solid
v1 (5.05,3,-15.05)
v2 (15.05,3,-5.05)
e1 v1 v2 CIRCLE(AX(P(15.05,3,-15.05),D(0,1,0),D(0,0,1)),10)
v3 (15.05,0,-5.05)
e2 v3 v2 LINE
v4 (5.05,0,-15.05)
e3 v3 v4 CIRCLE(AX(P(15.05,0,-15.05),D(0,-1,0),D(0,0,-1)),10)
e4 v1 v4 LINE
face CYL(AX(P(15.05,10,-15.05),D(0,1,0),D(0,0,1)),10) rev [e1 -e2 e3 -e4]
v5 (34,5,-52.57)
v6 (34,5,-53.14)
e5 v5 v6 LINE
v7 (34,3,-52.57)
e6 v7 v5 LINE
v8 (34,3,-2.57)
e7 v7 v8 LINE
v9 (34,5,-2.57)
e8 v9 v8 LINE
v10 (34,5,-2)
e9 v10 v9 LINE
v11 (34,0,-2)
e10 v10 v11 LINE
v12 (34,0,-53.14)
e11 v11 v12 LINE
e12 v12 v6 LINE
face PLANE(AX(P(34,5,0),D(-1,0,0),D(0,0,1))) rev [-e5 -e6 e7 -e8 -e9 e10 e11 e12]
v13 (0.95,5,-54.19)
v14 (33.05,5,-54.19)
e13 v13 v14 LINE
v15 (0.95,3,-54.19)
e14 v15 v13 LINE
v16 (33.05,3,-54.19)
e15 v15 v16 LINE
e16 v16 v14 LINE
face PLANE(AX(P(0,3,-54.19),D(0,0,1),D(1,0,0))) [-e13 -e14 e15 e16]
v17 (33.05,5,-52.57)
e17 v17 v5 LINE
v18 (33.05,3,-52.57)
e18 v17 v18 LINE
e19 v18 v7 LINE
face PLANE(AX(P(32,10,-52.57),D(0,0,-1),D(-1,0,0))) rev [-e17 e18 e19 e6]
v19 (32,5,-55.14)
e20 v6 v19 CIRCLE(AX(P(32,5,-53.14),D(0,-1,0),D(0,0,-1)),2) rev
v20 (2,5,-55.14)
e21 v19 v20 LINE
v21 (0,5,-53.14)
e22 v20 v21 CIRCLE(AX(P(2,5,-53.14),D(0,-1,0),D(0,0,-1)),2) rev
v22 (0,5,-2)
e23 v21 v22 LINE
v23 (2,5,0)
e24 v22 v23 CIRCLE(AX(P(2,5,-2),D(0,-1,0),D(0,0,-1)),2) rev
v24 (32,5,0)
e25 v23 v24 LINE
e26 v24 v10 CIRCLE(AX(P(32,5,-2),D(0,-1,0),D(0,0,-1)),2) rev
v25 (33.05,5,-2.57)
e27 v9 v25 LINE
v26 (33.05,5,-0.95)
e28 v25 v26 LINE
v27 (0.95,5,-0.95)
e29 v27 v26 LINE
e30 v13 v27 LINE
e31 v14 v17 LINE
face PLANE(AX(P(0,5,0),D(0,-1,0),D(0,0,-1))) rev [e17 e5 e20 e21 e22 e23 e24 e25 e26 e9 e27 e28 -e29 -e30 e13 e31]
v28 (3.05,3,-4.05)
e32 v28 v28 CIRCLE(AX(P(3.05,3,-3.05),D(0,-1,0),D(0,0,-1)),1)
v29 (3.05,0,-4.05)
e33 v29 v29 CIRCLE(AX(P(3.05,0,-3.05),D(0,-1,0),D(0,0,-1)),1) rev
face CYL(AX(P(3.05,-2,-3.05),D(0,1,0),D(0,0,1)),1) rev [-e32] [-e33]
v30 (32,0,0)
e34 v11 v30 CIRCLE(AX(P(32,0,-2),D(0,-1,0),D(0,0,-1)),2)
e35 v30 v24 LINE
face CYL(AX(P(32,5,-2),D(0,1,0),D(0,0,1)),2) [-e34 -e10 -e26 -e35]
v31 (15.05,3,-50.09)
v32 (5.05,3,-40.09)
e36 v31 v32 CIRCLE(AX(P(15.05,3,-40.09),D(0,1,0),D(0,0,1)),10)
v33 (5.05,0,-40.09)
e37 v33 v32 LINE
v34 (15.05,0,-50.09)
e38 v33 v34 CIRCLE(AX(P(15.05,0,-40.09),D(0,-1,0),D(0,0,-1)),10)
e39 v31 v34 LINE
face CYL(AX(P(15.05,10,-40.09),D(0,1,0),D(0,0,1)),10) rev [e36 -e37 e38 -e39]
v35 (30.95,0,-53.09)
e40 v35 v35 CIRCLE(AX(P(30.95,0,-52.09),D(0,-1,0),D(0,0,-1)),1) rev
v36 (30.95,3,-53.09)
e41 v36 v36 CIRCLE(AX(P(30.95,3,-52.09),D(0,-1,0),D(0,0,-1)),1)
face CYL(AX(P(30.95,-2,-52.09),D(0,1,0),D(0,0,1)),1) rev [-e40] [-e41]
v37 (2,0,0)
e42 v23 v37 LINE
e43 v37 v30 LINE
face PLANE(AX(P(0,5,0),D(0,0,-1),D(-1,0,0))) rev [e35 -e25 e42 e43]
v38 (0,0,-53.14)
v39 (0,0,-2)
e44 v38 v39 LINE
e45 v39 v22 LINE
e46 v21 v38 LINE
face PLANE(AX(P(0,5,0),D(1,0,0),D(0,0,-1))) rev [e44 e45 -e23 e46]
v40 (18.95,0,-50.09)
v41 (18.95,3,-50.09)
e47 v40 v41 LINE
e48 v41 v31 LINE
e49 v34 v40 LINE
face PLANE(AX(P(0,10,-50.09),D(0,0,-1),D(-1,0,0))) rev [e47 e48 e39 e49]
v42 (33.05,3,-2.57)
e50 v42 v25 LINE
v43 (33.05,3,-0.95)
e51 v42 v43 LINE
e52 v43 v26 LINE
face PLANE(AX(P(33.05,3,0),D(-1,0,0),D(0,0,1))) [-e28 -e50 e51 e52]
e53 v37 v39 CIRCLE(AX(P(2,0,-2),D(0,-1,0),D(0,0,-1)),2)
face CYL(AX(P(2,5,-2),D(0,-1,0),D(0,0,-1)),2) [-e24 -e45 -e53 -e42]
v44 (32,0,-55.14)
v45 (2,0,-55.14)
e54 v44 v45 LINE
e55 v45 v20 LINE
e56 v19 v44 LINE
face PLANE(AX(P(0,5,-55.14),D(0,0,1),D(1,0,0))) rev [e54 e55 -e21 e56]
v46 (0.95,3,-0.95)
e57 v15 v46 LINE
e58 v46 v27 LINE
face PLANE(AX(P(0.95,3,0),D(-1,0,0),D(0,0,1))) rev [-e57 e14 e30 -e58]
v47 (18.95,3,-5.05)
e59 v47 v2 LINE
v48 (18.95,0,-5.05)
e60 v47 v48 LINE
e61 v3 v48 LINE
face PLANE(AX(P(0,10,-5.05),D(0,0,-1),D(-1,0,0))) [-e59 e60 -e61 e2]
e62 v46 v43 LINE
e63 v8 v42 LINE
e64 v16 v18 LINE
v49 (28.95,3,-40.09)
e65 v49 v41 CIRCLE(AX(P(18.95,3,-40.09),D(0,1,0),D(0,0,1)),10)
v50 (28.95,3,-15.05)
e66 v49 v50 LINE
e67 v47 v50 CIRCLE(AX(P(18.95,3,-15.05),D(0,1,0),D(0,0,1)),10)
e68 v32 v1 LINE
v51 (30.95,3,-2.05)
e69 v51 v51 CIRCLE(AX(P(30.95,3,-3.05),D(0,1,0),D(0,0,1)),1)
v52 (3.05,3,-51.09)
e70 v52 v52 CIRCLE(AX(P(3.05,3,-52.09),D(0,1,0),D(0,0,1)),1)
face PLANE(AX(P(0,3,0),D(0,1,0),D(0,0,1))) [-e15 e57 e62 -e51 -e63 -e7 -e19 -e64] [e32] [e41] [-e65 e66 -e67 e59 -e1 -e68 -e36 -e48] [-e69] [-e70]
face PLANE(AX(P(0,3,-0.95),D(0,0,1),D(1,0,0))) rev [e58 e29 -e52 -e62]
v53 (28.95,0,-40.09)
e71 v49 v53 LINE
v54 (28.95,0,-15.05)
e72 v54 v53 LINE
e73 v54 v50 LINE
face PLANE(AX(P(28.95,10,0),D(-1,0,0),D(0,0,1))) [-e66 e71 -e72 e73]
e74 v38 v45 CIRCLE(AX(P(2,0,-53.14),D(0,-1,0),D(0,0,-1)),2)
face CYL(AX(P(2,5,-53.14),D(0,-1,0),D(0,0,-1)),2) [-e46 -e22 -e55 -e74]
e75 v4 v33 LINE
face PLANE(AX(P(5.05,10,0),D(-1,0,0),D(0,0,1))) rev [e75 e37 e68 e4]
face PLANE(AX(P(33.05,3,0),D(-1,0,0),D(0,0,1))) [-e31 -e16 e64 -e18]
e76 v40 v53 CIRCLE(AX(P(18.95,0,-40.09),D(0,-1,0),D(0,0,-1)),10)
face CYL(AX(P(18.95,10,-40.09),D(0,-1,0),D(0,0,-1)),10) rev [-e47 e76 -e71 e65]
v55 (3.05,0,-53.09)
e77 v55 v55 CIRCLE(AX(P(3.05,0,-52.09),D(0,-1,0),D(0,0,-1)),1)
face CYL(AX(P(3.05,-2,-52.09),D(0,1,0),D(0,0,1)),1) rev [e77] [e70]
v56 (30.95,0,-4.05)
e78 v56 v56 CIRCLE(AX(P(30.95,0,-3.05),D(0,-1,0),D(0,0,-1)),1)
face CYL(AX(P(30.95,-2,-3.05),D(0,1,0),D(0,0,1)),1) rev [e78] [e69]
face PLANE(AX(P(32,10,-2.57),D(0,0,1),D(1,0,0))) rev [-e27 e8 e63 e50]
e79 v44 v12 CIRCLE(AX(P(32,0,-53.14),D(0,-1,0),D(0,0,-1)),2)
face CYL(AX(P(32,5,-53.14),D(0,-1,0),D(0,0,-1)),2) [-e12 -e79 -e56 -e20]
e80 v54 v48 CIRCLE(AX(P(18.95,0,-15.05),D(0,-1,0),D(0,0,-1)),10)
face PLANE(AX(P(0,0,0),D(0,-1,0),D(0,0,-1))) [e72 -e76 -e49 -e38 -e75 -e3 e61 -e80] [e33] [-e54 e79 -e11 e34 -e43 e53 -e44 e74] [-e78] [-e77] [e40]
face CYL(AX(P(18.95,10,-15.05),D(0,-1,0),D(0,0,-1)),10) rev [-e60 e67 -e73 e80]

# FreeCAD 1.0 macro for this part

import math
import FreeCAD as App
import Part
import Sketcher

V = App.Vector


def edges_at(feature, points):
    """Names of the edges that pass closest to the given points."""
    edges = feature.Shape.Edges
    near = lambda p: min(range(len(edges)), key=lambda i: edges[i].distToShape(Part.Vertex(*p))[0])
    return sorted({f"Edge{near(p) + 1}" for p in points})

doc = App.newDocument("Part")
body = doc.addObject("PartDesign::Body", "Body")

# Sketch on XZ plane
sketch1 = body.newObject("Sketcher::SketchObject", "Sketch")
sketch1.AttachmentSupport = (doc.getObject("XZ_Plane"), [""])
sketch1.MapMode = "FlatFace"
sketch1.addGeometry([
    Part.LineSegment(V(0, -55, 0), V(0, 0, 0)),
    Part.LineSegment(V(0, 0, 0), V(34, 0, 0)),
    Part.LineSegment(V(34, 0, 0), V(34, -55, 0)),
    Part.LineSegment(V(34, -55, 0), V(0, -55, 0)),
], False)
sketch1.addConstraint([
    Sketcher.Constraint("Coincident", 0, 2, 1, 1),
    Sketcher.Constraint("Coincident", 1, 2, 2, 1),
    Sketcher.Constraint("Coincident", 2, 2, 3, 1),
    Sketcher.Constraint("Coincident", 3, 2, 0, 1),
    Sketcher.Constraint("Vertical", 0),
    Sketcher.Constraint("Horizontal", 1),
    Sketcher.Constraint("Vertical", 2),
    Sketcher.Constraint("Horizontal", 3),
    Sketcher.Constraint("Coincident", 0, 2, -1, 1),
    Sketcher.Constraint("DistanceX", 1, 1, 1, 2, 34.0),
    Sketcher.Constraint("DistanceY", 0, 1, 0, 2, 55.14),
])
pad1 = body.newObject("PartDesign::Pad", "Pad")
pad1.Profile = sketch1
pad1.Length = 5
pad1.Reversed = True

# Sketch on XZ plane
sketch2 = body.newObject("Sketcher::SketchObject", "Sketch001")
sketch2.AttachmentSupport = (doc.getObject("XZ_Plane"), [""])
sketch2.MapMode = "FlatFace"
sketch2.AttachmentOffset = App.Placement(V(0, 0, -5), App.Rotation())
sketch2.addGeometry([
    Part.LineSegment(V(1, -54, 0), V(1, -1, 0)),
    Part.LineSegment(V(1, -1, 0), V(33, -1, 0)),
    Part.LineSegment(V(33, -1, 0), V(33, -54, 0)),
    Part.LineSegment(V(33, -54, 0), V(1, -54, 0)),
], False)
sketch2.addConstraint([
    Sketcher.Constraint("Coincident", 0, 2, 1, 1),
    Sketcher.Constraint("Coincident", 1, 2, 2, 1),
    Sketcher.Constraint("Coincident", 2, 2, 3, 1),
    Sketcher.Constraint("Coincident", 3, 2, 0, 1),
    Sketcher.Constraint("Vertical", 0),
    Sketcher.Constraint("Horizontal", 1),
    Sketcher.Constraint("Vertical", 2),
    Sketcher.Constraint("Horizontal", 3),
    Sketcher.Constraint("DistanceX", 1, 1, 1, 2, 32.1),
    Sketcher.Constraint("DistanceY", 0, 1, 0, 2, 53.24),
    Sketcher.Constraint("DistanceX", -1, 1, 0, 2, 0.95),
    Sketcher.Constraint("DistanceY", 0, 2, -1, 1, 0.95),
])
pocket1 = body.newObject("PartDesign::Pocket", "Pocket")
pocket1.Profile = sketch2
pocket1.Length = 2
pocket1.Reversed = True

# Sketch on YZ plane
sketch3 = body.newObject("Sketcher::SketchObject", "Sketch002")
sketch3.AttachmentSupport = (doc.getObject("YZ_Plane"), [""])
sketch3.MapMode = "FlatFace"
sketch3.AttachmentOffset = App.Placement(V(0, 0, 34), App.Rotation())
sketch3.addGeometry([
    Part.LineSegment(V(10, -3, 0), V(0, -3, 0)),
    Part.LineSegment(V(0, -3, 0), V(0, -53, 0)),
    Part.LineSegment(V(0, -53, 0), V(10, -53, 0)),
    Part.LineSegment(V(10, -53, 0), V(10, -3, 0)),
], False)
sketch3.addConstraint([
    Sketcher.Constraint("Coincident", 0, 2, 1, 1),
    Sketcher.Constraint("Coincident", 1, 2, 2, 1),
    Sketcher.Constraint("Coincident", 2, 2, 3, 1),
    Sketcher.Constraint("Coincident", 3, 2, 0, 1),
    Sketcher.Constraint("Horizontal", 0),
    Sketcher.Constraint("Vertical", 1),
    Sketcher.Constraint("Horizontal", 2),
    Sketcher.Constraint("Vertical", 3),
    Sketcher.Constraint("PointOnObject", 0, 2, -2),
    Sketcher.Constraint("DistanceX", 0, 2, 0, 1, 10.0),
    Sketcher.Constraint("DistanceY", 1, 2, 1, 1, 50.0),
    Sketcher.Constraint("DistanceY", 0, 2, -1, 1, 2.57),
])
pocket2 = body.newObject("PartDesign::Pocket", "Pocket001")
pocket2.Profile = sketch3
pocket2.Length = 2
doc.recompute()

fillet = body.newObject("PartDesign::Fillet", "Fillet")
fillet.Base = (pocket2, edges_at(pocket2, [(0, 2.5, 0)]))
fillet.Radius = 2
doc.recompute()

fillet2 = body.newObject("PartDesign::Fillet", "Fillet001")
fillet2.Base = (fillet, edges_at(fillet, [(0, 2.5, -55.14)]))
fillet2.Radius = 2
doc.recompute()

fillet3 = body.newObject("PartDesign::Fillet", "Fillet002")
fillet3.Base = (fillet2, edges_at(fillet2, [(34, 2.5, -55.14)]))
fillet3.Radius = 2
doc.recompute()

fillet4 = body.newObject("PartDesign::Fillet", "Fillet003")
fillet4.Base = (fillet3, edges_at(fillet3, [(34, 2.5, 0)]))
fillet4.Radius = 2

# Sketch on XZ plane
sketch4 = body.newObject("Sketcher::SketchObject", "Sketch003")
sketch4.AttachmentSupport = (doc.getObject("XZ_Plane"), [""])
sketch4.MapMode = "FlatFace"
sketch4.AttachmentOffset = App.Placement(V(0, 0, -3), App.Rotation())
sketch4.addGeometry([
    Part.Circle(V(3, -52.1, 0), V(0, 0, 1), 1),
    Part.Circle(V(3, -3, 0), V(0, 0, 1), 1),
    Part.Circle(V(30.9, -3, 0), V(0, 0, 1), 1),
    Part.Circle(V(30.9, -52.1, 0), V(0, 0, 1), 1),
], False)
sketch4.addConstraint([
    Sketcher.Constraint("Equal", 0, 1),
    Sketcher.Constraint("Equal", 1, 2),
    Sketcher.Constraint("Equal", 2, 3),
    Sketcher.Constraint("Horizontal", 1, 3, 2, 3),
    Sketcher.Constraint("Horizontal", 0, 3, 3, 3),
    Sketcher.Constraint("Vertical", 0, 3, 1, 3),
    Sketcher.Constraint("Vertical", 2, 3, 3, 3),
    Sketcher.Constraint("Diameter", 0, 2.0),
    Sketcher.Constraint("DistanceX", 1, 3, 2, 3, 27.9),
    Sketcher.Constraint("DistanceX", -1, 1, 0, 3, 3.05),
    Sketcher.Constraint("DistanceY", 0, 3, -1, 1, 52.09),
    Sketcher.Constraint("DistanceY", 1, 3, -1, 1, 3.05),
])
pocket3 = body.newObject("PartDesign::Pocket", "Pocket002")
pocket3.Profile = sketch4
pocket3.Length = 5
pocket3.Reversed = True

# Sketch on XZ plane
sketch5 = body.newObject("Sketcher::SketchObject", "Sketch004")
sketch5.AttachmentSupport = (doc.getObject("XZ_Plane"), [""])
sketch5.MapMode = "FlatFace"
sketch5.AttachmentOffset = App.Placement(V(0, 0, -3), App.Rotation())
sketch5.addGeometry([
    Part.ArcOfCircle(Part.Circle(V(6.05, -49.09, 0), V(0, 0, 1), 1), math.radians(-180), math.radians(-90)),  # 0
    Part.LineSegment(V(5.05, -49.09, 0), V(5.05, -6.05, 0)),  # 1
    Part.ArcOfCircle(Part.Circle(V(6.05, -6.05, 0), V(0, 0, 1), 1), math.radians(90), math.radians(180)),  # 2
    Part.LineSegment(V(6.05, -5.05, 0), V(6.25, -5.05, 0)),  # 3
    Part.ArcOfCircle(Part.Circle(V(6.25, -6.05, 0), V(0, 0, 1), 1), math.radians(0), math.radians(90)),  # 4
    Part.LineSegment(V(7.25, -6.05, 0), V(7.25, -49.09, 0)),  # 5
    Part.ArcOfCircle(Part.Circle(V(6.25, -49.09, 0), V(0, 0, 1), 1), math.radians(-90), math.radians(0)),  # 6
    Part.LineSegment(V(6.25, -50.09, 0), V(6.05, -50.09, 0)),  # 7
    Part.ArcOfCircle(Part.Circle(V(11.05, -49.09, 0), V(0, 0, 1), 1), math.radians(-180), math.radians(-90)),  # 8
    Part.LineSegment(V(10.05, -49.09, 0), V(10.05, -6.05, 0)),  # 9
    Part.ArcOfCircle(Part.Circle(V(11.05, -6.05, 0), V(0, 0, 1), 1), math.radians(90), math.radians(180)),  # 10
    Part.LineSegment(V(11.05, -5.05, 0), V(11.25, -5.05, 0)),  # 11
    Part.ArcOfCircle(Part.Circle(V(11.25, -6.05, 0), V(0, 0, 1), 1), math.radians(0), math.radians(90)),  # 12
    Part.LineSegment(V(12.25, -6.05, 0), V(12.25, -49.09, 0)),  # 13
    Part.ArcOfCircle(Part.Circle(V(11.25, -49.09, 0), V(0, 0, 1), 1), math.radians(-90), math.radians(0)),  # 14
    Part.LineSegment(V(11.25, -50.09, 0), V(11.05, -50.09, 0)),  # 15
    Part.ArcOfCircle(Part.Circle(V(21.05, -49.09, 0), V(0, 0, 1), 1), math.radians(-180), math.radians(-90)),  # 16
    Part.LineSegment(V(20.05, -49.09, 0), V(20.05, -6.05, 0)),  # 17
    Part.ArcOfCircle(Part.Circle(V(21.05, -6.05, 0), V(0, 0, 1), 1), math.radians(90), math.radians(180)),  # 18
    Part.LineSegment(V(21.05, -5.05, 0), V(21.25, -5.05, 0)),  # 19
    Part.ArcOfCircle(Part.Circle(V(21.25, -6.05, 0), V(0, 0, 1), 1), math.radians(0), math.radians(90)),  # 20
    Part.LineSegment(V(22.25, -6.05, 0), V(22.25, -49.09, 0)),  # 21
    Part.ArcOfCircle(Part.Circle(V(21.25, -49.09, 0), V(0, 0, 1), 1), math.radians(-90), math.radians(0)),  # 22
    Part.LineSegment(V(21.25, -50.09, 0), V(21.05, -50.09, 0)),  # 23
    Part.ArcOfCircle(Part.Circle(V(26.05, -6.05, 0), V(0, 0, 1), 1), math.radians(90), math.radians(180)),  # 24
    Part.LineSegment(V(26.05, -5.05, 0), V(26.25, -5.05, 0)),  # 25
    Part.ArcOfCircle(Part.Circle(V(26.25, -6.05, 0), V(0, 0, 1), 1), math.radians(0), math.radians(90)),  # 26
    Part.LineSegment(V(27.25, -6.05, 0), V(27.25, -49.09, 0)),  # 27
    Part.ArcOfCircle(Part.Circle(V(26.25, -49.09, 0), V(0, 0, 1), 1), math.radians(-90), math.radians(0)),  # 28
    Part.LineSegment(V(26.25, -50.09, 0), V(26.05, -50.09, 0)),  # 29
    Part.ArcOfCircle(Part.Circle(V(26.05, -49.09, 0), V(0, 0, 1), 1), math.radians(-180), math.radians(-90)),  # 30
    Part.LineSegment(V(25.05, -49.09, 0), V(25.05, -6.05, 0)),  # 31
    Part.LineSegment(V(15.05, -49.09, 0), V(15.05, -6.05, 0)),  # 32
    Part.ArcOfCircle(Part.Circle(V(16.05, -6.05, 0), V(0, 0, 1), 1), math.radians(90), math.radians(180)),  # 33
    Part.LineSegment(V(16.05, -5.05, 0), V(16.25, -5.05, 0)),  # 34
    Part.ArcOfCircle(Part.Circle(V(16.25, -6.05, 0), V(0, 0, 1), 1), math.radians(0), math.radians(90)),  # 35
    Part.LineSegment(V(17.25, -6.05, 0), V(17.25, -49.09, 0)),  # 36
    Part.ArcOfCircle(Part.Circle(V(16.25, -49.09, 0), V(0, 0, 1), 1), math.radians(-90), math.radians(0)),  # 37
    Part.LineSegment(V(16.25, -50.09, 0), V(16.05, -50.09, 0)),  # 38
    Part.ArcOfCircle(Part.Circle(V(16.05, -49.09, 0), V(0, 0, 1), 1), math.radians(-180), math.radians(-90)),  # 39
], False)
sketch5.addConstraint([
    Sketcher.Constraint("Tangent", 0, 1, 1, 1),
    Sketcher.Constraint("Tangent", 1, 2, 2, 2),
    Sketcher.Constraint("Tangent", 2, 1, 3, 1),
    Sketcher.Constraint("Tangent", 3, 2, 4, 2),
    Sketcher.Constraint("Tangent", 4, 1, 5, 1),
    Sketcher.Constraint("Tangent", 5, 2, 6, 2),
    Sketcher.Constraint("Tangent", 6, 1, 7, 1),
    Sketcher.Constraint("Tangent", 7, 2, 0, 2),
    Sketcher.Constraint("Tangent", 8, 1, 9, 1),
    Sketcher.Constraint("Tangent", 9, 2, 10, 2),
    Sketcher.Constraint("Tangent", 10, 1, 11, 1),
    Sketcher.Constraint("Tangent", 11, 2, 12, 2),
    Sketcher.Constraint("Tangent", 12, 1, 13, 1),
    Sketcher.Constraint("Tangent", 13, 2, 14, 2),
    Sketcher.Constraint("Tangent", 14, 1, 15, 1),
    Sketcher.Constraint("Tangent", 15, 2, 8, 2),
    Sketcher.Constraint("Tangent", 16, 1, 17, 1),
    Sketcher.Constraint("Tangent", 17, 2, 18, 2),
    Sketcher.Constraint("Tangent", 18, 1, 19, 1),
    Sketcher.Constraint("Tangent", 19, 2, 20, 2),
    Sketcher.Constraint("Tangent", 20, 1, 21, 1),
    Sketcher.Constraint("Tangent", 21, 2, 22, 2),
    Sketcher.Constraint("Tangent", 22, 1, 23, 1),
    Sketcher.Constraint("Tangent", 23, 2, 16, 2),
    Sketcher.Constraint("Tangent", 24, 1, 25, 1),
    Sketcher.Constraint("Tangent", 25, 2, 26, 2),
    Sketcher.Constraint("Tangent", 26, 1, 27, 1),
    Sketcher.Constraint("Tangent", 27, 2, 28, 2),
    Sketcher.Constraint("Tangent", 28, 1, 29, 1),
    Sketcher.Constraint("Tangent", 29, 2, 30, 2),
    Sketcher.Constraint("Tangent", 30, 1, 31, 1),
    Sketcher.Constraint("Tangent", 31, 2, 24, 2),
    Sketcher.Constraint("Tangent", 32, 2, 33, 2),
    Sketcher.Constraint("Tangent", 33, 1, 34, 1),
    Sketcher.Constraint("Tangent", 34, 2, 35, 2),
    Sketcher.Constraint("Tangent", 35, 1, 36, 1),
    Sketcher.Constraint("Tangent", 36, 2, 37, 2),
    Sketcher.Constraint("Tangent", 37, 1, 38, 1),
    Sketcher.Constraint("Tangent", 38, 2, 39, 2),
    Sketcher.Constraint("Tangent", 39, 1, 32, 1),
    Sketcher.Constraint("Vertical", 1),
    Sketcher.Constraint("Horizontal", 3),
    Sketcher.Constraint("Vertical", 5),
    Sketcher.Constraint("Horizontal", 7),
    Sketcher.Constraint("Vertical", 9),
    Sketcher.Constraint("Horizontal", 11),
    Sketcher.Constraint("Vertical", 13),
    Sketcher.Constraint("Horizontal", 15),
    Sketcher.Constraint("Vertical", 17),
    Sketcher.Constraint("Horizontal", 19),
    Sketcher.Constraint("Vertical", 21),
    Sketcher.Constraint("Horizontal", 23),
    Sketcher.Constraint("Horizontal", 25),
    Sketcher.Constraint("Vertical", 27),
    Sketcher.Constraint("Horizontal", 29),
    Sketcher.Constraint("Vertical", 31),
    Sketcher.Constraint("Vertical", 32),
    Sketcher.Constraint("Horizontal", 34),
    Sketcher.Constraint("Vertical", 36),
    Sketcher.Constraint("Horizontal", 38),
    Sketcher.Constraint("Equal", 0, 2),
    Sketcher.Constraint("Equal", 2, 4),
    Sketcher.Constraint("Equal", 4, 6),
    Sketcher.Constraint("Equal", 6, 8),
    Sketcher.Constraint("Equal", 8, 10),
    Sketcher.Constraint("Equal", 10, 12),
    Sketcher.Constraint("Equal", 12, 14),
    Sketcher.Constraint("Equal", 14, 16),
    Sketcher.Constraint("Equal", 16, 18),
    Sketcher.Constraint("Equal", 18, 20),
    Sketcher.Constraint("Equal", 20, 22),
    Sketcher.Constraint("Equal", 22, 24),
    Sketcher.Constraint("Equal", 24, 26),
    Sketcher.Constraint("Equal", 26, 28),
    Sketcher.Constraint("Equal", 28, 30),
    Sketcher.Constraint("Equal", 30, 33),
    Sketcher.Constraint("Equal", 33, 35),
    Sketcher.Constraint("Equal", 35, 37),
    Sketcher.Constraint("Equal", 37, 39),
    Sketcher.Constraint("Horizontal", 6, 3, 8, 3),
    Sketcher.Constraint("Horizontal", 4, 3, 10, 3),
    Sketcher.Constraint("Horizontal", 14, 3, 16, 3),
    Sketcher.Constraint("Horizontal", 12, 3, 18, 3),
    Sketcher.Constraint("Horizontal", 20, 3, 24, 3),
    Sketcher.Constraint("Horizontal", 22, 3, 28, 3),
    Sketcher.Constraint("Horizontal", 26, 3, 33, 3),
    Sketcher.Constraint("Horizontal", 30, 3, 37, 3),
    Sketcher.Constraint("Equal", 7, 11),
    Sketcher.Constraint("Equal", 15, 19),
    Sketcher.Constraint("Equal", 23, 25),
    Sketcher.Constraint("Equal", 29, 34),
    Sketcher.Constraint("Radius", 0, 1.0),
    Sketcher.Constraint("DistanceX", 0, 3, 8, 3, 5.0),
    Sketcher.Constraint("DistanceX", 8, 3, 16, 3, 10.0),
    Sketcher.Constraint("DistanceX", 18, 3, 24, 3, 5.0),
    Sketcher.Constraint("DistanceX", 10, 3, 33, 3, 5.0),
    Sketcher.Constraint("DistanceY", 1, 1, 1, 2, 43.04),
    Sketcher.Constraint("DistanceX", -1, 1, 0, 3, 6.05),
    Sketcher.Constraint("DistanceY", 0, 3, -1, 1, 49.09),
    Sketcher.Constraint("DistanceX", 3, 1, 3, 2, 0.204717),
])
pocket4 = body.newObject("PartDesign::Pocket", "Pocket003")
pocket4.Profile = sketch5
pocket4.Length = 5
pocket4.Reversed = True

# Sketch on XZ plane
sketch6 = body.newObject("Sketcher::SketchObject", "Sketch005")
sketch6.AttachmentSupport = (doc.getObject("XZ_Plane"), [""])
sketch6.MapMode = "FlatFace"
sketch6.addGeometry([
    Part.LineSegment(V(3, -5, 0), V(3, -51, 0)),
    Part.LineSegment(V(3, -51, 0), V(28, -51, 0)),
    Part.LineSegment(V(28, -51, 0), V(28, -5, 0)),
    Part.LineSegment(V(28, -5, 0), V(3, -5, 0)),
], False)
sketch6.addConstraint([
    Sketcher.Constraint("Coincident", 0, 2, 1, 1),
    Sketcher.Constraint("Coincident", 1, 2, 2, 1),
    Sketcher.Constraint("Coincident", 2, 2, 3, 1),
    Sketcher.Constraint("Coincident", 3, 2, 0, 1),
    Sketcher.Constraint("Vertical", 0),
    Sketcher.Constraint("Horizontal", 1),
    Sketcher.Constraint("Vertical", 2),
    Sketcher.Constraint("Horizontal", 3),
    Sketcher.Constraint("DistanceX", 1, 1, 1, 2, 24.577641),
    Sketcher.Constraint("DistanceY", 0, 2, 0, 1, 46.089684),
    Sketcher.Constraint("DistanceY", 0, 2, -1, 1, 50.614842),
    Sketcher.Constraint("DistanceX", -1, 1, 0, 2, 3.336946),
])
pad2 = body.newObject("PartDesign::Pad", "Pad001")
pad2.Profile = sketch6
pad2.Length = 3
pad2.Reversed = True

# Sketch on XZ plane
sketch7 = body.newObject("Sketcher::SketchObject", "Sketch006")
sketch7.AttachmentSupport = (doc.getObject("XZ_Plane"), [""])
sketch7.MapMode = "FlatFace"
sketch7.addGeometry([
    Part.LineSegment(V(7, 0, 0), V(7, -6, 0)),
    Part.LineSegment(V(7, -6, 0), V(27, -6, 0)),
    Part.LineSegment(V(27, -6, 0), V(27, 0, 0)),
    Part.LineSegment(V(27, 0, 0), V(7, 0, 0)),
], False)
sketch7.addConstraint([
    Sketcher.Constraint("Coincident", 0, 2, 1, 1),
    Sketcher.Constraint("Coincident", 1, 2, 2, 1),
    Sketcher.Constraint("Coincident", 2, 2, 3, 1),
    Sketcher.Constraint("Coincident", 3, 2, 0, 1),
    Sketcher.Constraint("Vertical", 0),
    Sketcher.Constraint("Horizontal", 1),
    Sketcher.Constraint("Vertical", 2),
    Sketcher.Constraint("Horizontal", 3),
    Sketcher.Constraint("PointOnObject", 2, 2, -1),
    Sketcher.Constraint("DistanceX", 1, 1, 1, 2, 20.0),
    Sketcher.Constraint("DistanceY", 0, 2, 0, 1, 6.0),
    Sketcher.Constraint("DistanceX", -1, 1, 0, 2, 7.0),
])
pad3 = body.newObject("PartDesign::Pad", "Pad002")
pad3.Profile = sketch7
pad3.Length = 5

# Sketch on XZ plane
sketch8 = body.newObject("Sketcher::SketchObject", "Sketch007")
sketch8.AttachmentSupport = (doc.getObject("XZ_Plane"), [""])
sketch8.MapMode = "FlatFace"
sketch8.addGeometry([
    Part.LineSegment(V(7, -49, 0), V(7, -55, 0)),
    Part.LineSegment(V(7, -55, 0), V(27, -55, 0)),
    Part.LineSegment(V(27, -55, 0), V(27, -49, 0)),
    Part.LineSegment(V(27, -49, 0), V(7, -49, 0)),
], False)
sketch8.addConstraint([
    Sketcher.Constraint("Coincident", 0, 2, 1, 1),
    Sketcher.Constraint("Coincident", 1, 2, 2, 1),
    Sketcher.Constraint("Coincident", 2, 2, 3, 1),
    Sketcher.Constraint("Coincident", 3, 2, 0, 1),
    Sketcher.Constraint("Vertical", 0),
    Sketcher.Constraint("Horizontal", 1),
    Sketcher.Constraint("Vertical", 2),
    Sketcher.Constraint("Horizontal", 3),
    Sketcher.Constraint("DistanceX", 1, 1, 1, 2, 20.0),
    Sketcher.Constraint("DistanceY", 0, 2, 0, 1, 6.0),
    Sketcher.Constraint("DistanceX", -1, 1, 0, 2, 7.0),
    Sketcher.Constraint("DistanceY", 0, 2, -1, 1, 55.14),
])
pad4 = body.newObject("PartDesign::Pad", "Pad003")
pad4.Profile = sketch8
pad4.Length = 5

# Sketch on XY plane
sketch9 = body.newObject("Sketcher::SketchObject", "Sketch008")
sketch9.AttachmentSupport = (doc.getObject("XY_Plane"), [""])
sketch9.MapMode = "FlatFace"
sketch9.AttachmentOffset = App.Placement(V(0, 0, -55.14), App.Rotation())
sketch9.addGeometry([
    Part.ArcOfCircle(Part.Circle(V(10, -2.5, 0), V(0, 0, 1), 2), math.radians(-90), math.radians(180)),  # 0
    Part.ArcOfCircle(Part.Circle(V(10, -2.5, 0), V(0, 0, 1), 2), math.radians(-180), math.radians(-90)),  # 1
    Part.ArcOfCircle(Part.Circle(V(24, -2.5, 0), V(0, 0, 1), 2), math.radians(-90), math.radians(0)),  # 2
    Part.ArcOfCircle(Part.Circle(V(24, -2.5, 0), V(0, 0, 1), 2), math.radians(-180), math.radians(-90)),  # 3
    Part.ArcOfCircle(Part.Circle(V(24, -2.5, 0), V(0, 0, 1), 2), math.radians(0), math.radians(180)),  # 4
], False)
sketch9.addConstraint([
    Sketcher.Constraint("Tangent", 0, 1, 1, 2),
    Sketcher.Constraint("Coincident", 1, 1, 0, 2),
    Sketcher.Constraint("Tangent", 2, 1, 3, 2),
    Sketcher.Constraint("Tangent", 3, 1, 4, 2),
    Sketcher.Constraint("Tangent", 4, 1, 2, 2),
    Sketcher.Constraint("Equal", 1, 2),
    Sketcher.Constraint("Horizontal", 1, 3, 2, 3),
    Sketcher.Constraint("Horizontal", 4, 3, 1, 1),
    Sketcher.Constraint("Horizontal", 1, 1, 3, 1),
    Sketcher.Constraint("Horizontal", 3, 1, 4, 1),
    Sketcher.Constraint("Vertical", 1, 3, 0, 1),
    Sketcher.Constraint("Vertical", 4, 3, 2, 1),
    Sketcher.Constraint("Radius", 0, 2.0),
    Sketcher.Constraint("DistanceX", -1, 1, 0, 3, 10.0),
    Sketcher.Constraint("DistanceX", -1, 1, 2, 3, 24.0),
    Sketcher.Constraint("DistanceY", 0, 3, -1, 1, 2.5),
])
pocket5 = body.newObject("PartDesign::Pocket", "Pocket004")
pocket5.Profile = sketch9
pocket5.Type = "ThroughAll"
pocket5.Reversed = True
doc.recompute()

fillet5 = body.newObject("PartDesign::Fillet", "Fillet004")
fillet5.Base = (pocket5, edges_at(pocket5, [(7, -5, -52.14)]))
fillet5.Radius = 2
doc.recompute()

fillet6 = body.newObject("PartDesign::Fillet", "Fillet005")
fillet6.Base = (fillet5, edges_at(fillet5, [(7, 0, -52.14)]))
fillet6.Radius = 2
doc.recompute()

fillet7 = body.newObject("PartDesign::Fillet", "Fillet006")
fillet7.Base = (fillet6, edges_at(fillet6, [(27, -5, -52.14)]))
fillet7.Radius = 2
doc.recompute()

fillet8 = body.newObject("PartDesign::Fillet", "Fillet007")
fillet8.Base = (fillet7, edges_at(fillet7, [(27, 0, -52.14)]))
fillet8.Radius = 2
doc.recompute()

fillet9 = body.newObject("PartDesign::Fillet", "Fillet008")
fillet9.Base = (fillet8, edges_at(fillet8, [(7, -5, -3)]))
fillet9.Radius = 2
doc.recompute()

fillet10 = body.newObject("PartDesign::Fillet", "Fillet009")
fillet10.Base = (fillet9, edges_at(fillet9, [(7, 0, -3)]))
fillet10.Radius = 2
doc.recompute()

fillet11 = body.newObject("PartDesign::Fillet", "Fillet010")
fillet11.Base = (fillet10, edges_at(fillet10, [(27, -5, -3)]))
fillet11.Radius = 2
doc.recompute()

fillet12 = body.newObject("PartDesign::Fillet", "Fillet011")
fillet12.Base = (fillet11, edges_at(fillet11, [(27, 0, -3)]))
fillet12.Radius = 2

# Sketch on XZ plane
sketch10 = body.newObject("Sketcher::SketchObject", "Sketch009")
sketch10.AttachmentSupport = (doc.getObject("XZ_Plane"), [""])
sketch10.MapMode = "FlatFace"
sketch10.addGeometry([
    Part.LineSegment(V(32, -2.6, 0), V(32, -52.6, 0)),
    Part.LineSegment(V(32, -52.6, 0), V(34, -52.6, 0)),
    Part.LineSegment(V(34, -52.6, 0), V(34, -2.6, 0)),
    Part.LineSegment(V(34, -2.6, 0), V(32, -2.6, 0)),
], False)
sketch10.addConstraint([
    Sketcher.Constraint("Coincident", 0, 2, 1, 1),
    Sketcher.Constraint("Coincident", 1, 2, 2, 1),
    Sketcher.Constraint("Coincident", 2, 2, 3, 1),
    Sketcher.Constraint("Coincident", 3, 2, 0, 1),
    Sketcher.Constraint("Vertical", 0),
    Sketcher.Constraint("Horizontal", 1),
    Sketcher.Constraint("Vertical", 2),
    Sketcher.Constraint("Horizontal", 3),
    Sketcher.Constraint("DistanceX", 1, 1, 1, 2, 2.0),
    Sketcher.Constraint("DistanceY", 0, 2, 0, 1, 50.0),
    Sketcher.Constraint("DistanceX", -1, 1, 0, 2, 32.0),
    Sketcher.Constraint("DistanceY", 0, 2, -1, 1, 52.57),
])
pad5 = body.newObject("PartDesign::Pad", "Pad004")
pad5.Profile = sketch10
pad5.Length = 3
pad5.Reversed = True

# Sketch on XZ plane
sketch11 = body.newObject("Sketcher::SketchObject", "Sketch010")
sketch11.AttachmentSupport = (doc.getObject("XZ_Plane"), [""])
sketch11.MapMode = "FlatFace"
sketch11.addGeometry([
    Part.LineSegment(V(-47, 61, 0), V(-47, -59, 0)),
    Part.LineSegment(V(-47, -59, 0), V(40, -59, 0)),
    Part.LineSegment(V(40, -59, 0), V(40, 61, 0)),
    Part.LineSegment(V(40, 61, 0), V(-47, 61, 0)),
], False)
sketch11.addConstraint([
    Sketcher.Constraint("Coincident", 0, 2, 1, 1),
    Sketcher.Constraint("Coincident", 1, 2, 2, 1),
    Sketcher.Constraint("Coincident", 2, 2, 3, 1),
    Sketcher.Constraint("Coincident", 3, 2, 0, 1),
    Sketcher.Constraint("Vertical", 0),
    Sketcher.Constraint("Horizontal", 1),
    Sketcher.Constraint("Vertical", 2),
    Sketcher.Constraint("Horizontal", 3),
    Sketcher.Constraint("DistanceY", 0, 2, 0, 1, 120.507182),
    Sketcher.Constraint("DistanceX", 1, 1, 1, 2, 87.292455),
    Sketcher.Constraint("DistanceY", 0, 2, -1, 1, 59.123991),
    Sketcher.Constraint("DistanceX", -1, 1, 1, 2, 39.96487),
])
pocket6 = body.newObject("PartDesign::Pocket", "Pocket005")
pocket6.Profile = sketch11
pocket6.Length = 10
pocket6.Reversed = True

# Sketch on XZ plane
sketch12 = body.newObject("Sketcher::SketchObject", "Sketch011")
sketch12.AttachmentSupport = (doc.getObject("XZ_Plane"), [""])
sketch12.MapMode = "FlatFace"
sketch12.addGeometry([
    Part.LineSegment(V(5, -5, 0), V(5, -50, 0)),
    Part.LineSegment(V(5, -50, 0), V(29, -50, 0)),
    Part.LineSegment(V(29, -50, 0), V(29, -5, 0)),
    Part.LineSegment(V(29, -5, 0), V(5, -5, 0)),
], False)
sketch12.addConstraint([
    Sketcher.Constraint("Coincident", 0, 2, 1, 1),
    Sketcher.Constraint("Coincident", 1, 2, 2, 1),
    Sketcher.Constraint("Coincident", 2, 2, 3, 1),
    Sketcher.Constraint("Coincident", 3, 2, 0, 1),
    Sketcher.Constraint("Vertical", 0),
    Sketcher.Constraint("Horizontal", 1),
    Sketcher.Constraint("Vertical", 2),
    Sketcher.Constraint("Horizontal", 3),
    Sketcher.Constraint("DistanceX", 1, 1, 1, 2, 23.9),
    Sketcher.Constraint("DistanceY", 0, 2, 0, 1, 45.04),
    Sketcher.Constraint("DistanceX", -1, 1, 0, 2, 5.05),
    Sketcher.Constraint("DistanceY", 0, 2, -1, 1, 50.09),
])
pocket7 = body.newObject("PartDesign::Pocket", "Pocket006")
pocket7.Profile = sketch12
pocket7.Length = 10
doc.recompute()

fillet13 = body.newObject("PartDesign::Fillet", "Fillet012")
fillet13.Base = (pocket7, edges_at(pocket7, [(28.95, 1.5, -50.09)]))
fillet13.Radius = 10
doc.recompute()

fillet14 = body.newObject("PartDesign::Fillet", "Fillet013")
fillet14.Base = (fillet13, edges_at(fillet13, [(5.05, 1.5, -50.09)]))
fillet14.Radius = 10
doc.recompute()

fillet15 = body.newObject("PartDesign::Fillet", "Fillet014")
fillet15.Base = (fillet14, edges_at(fillet14, [(28.95, 1.5, -5.05)]))
fillet15.Radius = 10
doc.recompute()

fillet16 = body.newObject("PartDesign::Fillet", "Fillet015")
fillet16.Base = (fillet15, edges_at(fillet15, [(5.05, 1.5, -5.05)]))
fillet16.Radius = 10

doc.recompute()
